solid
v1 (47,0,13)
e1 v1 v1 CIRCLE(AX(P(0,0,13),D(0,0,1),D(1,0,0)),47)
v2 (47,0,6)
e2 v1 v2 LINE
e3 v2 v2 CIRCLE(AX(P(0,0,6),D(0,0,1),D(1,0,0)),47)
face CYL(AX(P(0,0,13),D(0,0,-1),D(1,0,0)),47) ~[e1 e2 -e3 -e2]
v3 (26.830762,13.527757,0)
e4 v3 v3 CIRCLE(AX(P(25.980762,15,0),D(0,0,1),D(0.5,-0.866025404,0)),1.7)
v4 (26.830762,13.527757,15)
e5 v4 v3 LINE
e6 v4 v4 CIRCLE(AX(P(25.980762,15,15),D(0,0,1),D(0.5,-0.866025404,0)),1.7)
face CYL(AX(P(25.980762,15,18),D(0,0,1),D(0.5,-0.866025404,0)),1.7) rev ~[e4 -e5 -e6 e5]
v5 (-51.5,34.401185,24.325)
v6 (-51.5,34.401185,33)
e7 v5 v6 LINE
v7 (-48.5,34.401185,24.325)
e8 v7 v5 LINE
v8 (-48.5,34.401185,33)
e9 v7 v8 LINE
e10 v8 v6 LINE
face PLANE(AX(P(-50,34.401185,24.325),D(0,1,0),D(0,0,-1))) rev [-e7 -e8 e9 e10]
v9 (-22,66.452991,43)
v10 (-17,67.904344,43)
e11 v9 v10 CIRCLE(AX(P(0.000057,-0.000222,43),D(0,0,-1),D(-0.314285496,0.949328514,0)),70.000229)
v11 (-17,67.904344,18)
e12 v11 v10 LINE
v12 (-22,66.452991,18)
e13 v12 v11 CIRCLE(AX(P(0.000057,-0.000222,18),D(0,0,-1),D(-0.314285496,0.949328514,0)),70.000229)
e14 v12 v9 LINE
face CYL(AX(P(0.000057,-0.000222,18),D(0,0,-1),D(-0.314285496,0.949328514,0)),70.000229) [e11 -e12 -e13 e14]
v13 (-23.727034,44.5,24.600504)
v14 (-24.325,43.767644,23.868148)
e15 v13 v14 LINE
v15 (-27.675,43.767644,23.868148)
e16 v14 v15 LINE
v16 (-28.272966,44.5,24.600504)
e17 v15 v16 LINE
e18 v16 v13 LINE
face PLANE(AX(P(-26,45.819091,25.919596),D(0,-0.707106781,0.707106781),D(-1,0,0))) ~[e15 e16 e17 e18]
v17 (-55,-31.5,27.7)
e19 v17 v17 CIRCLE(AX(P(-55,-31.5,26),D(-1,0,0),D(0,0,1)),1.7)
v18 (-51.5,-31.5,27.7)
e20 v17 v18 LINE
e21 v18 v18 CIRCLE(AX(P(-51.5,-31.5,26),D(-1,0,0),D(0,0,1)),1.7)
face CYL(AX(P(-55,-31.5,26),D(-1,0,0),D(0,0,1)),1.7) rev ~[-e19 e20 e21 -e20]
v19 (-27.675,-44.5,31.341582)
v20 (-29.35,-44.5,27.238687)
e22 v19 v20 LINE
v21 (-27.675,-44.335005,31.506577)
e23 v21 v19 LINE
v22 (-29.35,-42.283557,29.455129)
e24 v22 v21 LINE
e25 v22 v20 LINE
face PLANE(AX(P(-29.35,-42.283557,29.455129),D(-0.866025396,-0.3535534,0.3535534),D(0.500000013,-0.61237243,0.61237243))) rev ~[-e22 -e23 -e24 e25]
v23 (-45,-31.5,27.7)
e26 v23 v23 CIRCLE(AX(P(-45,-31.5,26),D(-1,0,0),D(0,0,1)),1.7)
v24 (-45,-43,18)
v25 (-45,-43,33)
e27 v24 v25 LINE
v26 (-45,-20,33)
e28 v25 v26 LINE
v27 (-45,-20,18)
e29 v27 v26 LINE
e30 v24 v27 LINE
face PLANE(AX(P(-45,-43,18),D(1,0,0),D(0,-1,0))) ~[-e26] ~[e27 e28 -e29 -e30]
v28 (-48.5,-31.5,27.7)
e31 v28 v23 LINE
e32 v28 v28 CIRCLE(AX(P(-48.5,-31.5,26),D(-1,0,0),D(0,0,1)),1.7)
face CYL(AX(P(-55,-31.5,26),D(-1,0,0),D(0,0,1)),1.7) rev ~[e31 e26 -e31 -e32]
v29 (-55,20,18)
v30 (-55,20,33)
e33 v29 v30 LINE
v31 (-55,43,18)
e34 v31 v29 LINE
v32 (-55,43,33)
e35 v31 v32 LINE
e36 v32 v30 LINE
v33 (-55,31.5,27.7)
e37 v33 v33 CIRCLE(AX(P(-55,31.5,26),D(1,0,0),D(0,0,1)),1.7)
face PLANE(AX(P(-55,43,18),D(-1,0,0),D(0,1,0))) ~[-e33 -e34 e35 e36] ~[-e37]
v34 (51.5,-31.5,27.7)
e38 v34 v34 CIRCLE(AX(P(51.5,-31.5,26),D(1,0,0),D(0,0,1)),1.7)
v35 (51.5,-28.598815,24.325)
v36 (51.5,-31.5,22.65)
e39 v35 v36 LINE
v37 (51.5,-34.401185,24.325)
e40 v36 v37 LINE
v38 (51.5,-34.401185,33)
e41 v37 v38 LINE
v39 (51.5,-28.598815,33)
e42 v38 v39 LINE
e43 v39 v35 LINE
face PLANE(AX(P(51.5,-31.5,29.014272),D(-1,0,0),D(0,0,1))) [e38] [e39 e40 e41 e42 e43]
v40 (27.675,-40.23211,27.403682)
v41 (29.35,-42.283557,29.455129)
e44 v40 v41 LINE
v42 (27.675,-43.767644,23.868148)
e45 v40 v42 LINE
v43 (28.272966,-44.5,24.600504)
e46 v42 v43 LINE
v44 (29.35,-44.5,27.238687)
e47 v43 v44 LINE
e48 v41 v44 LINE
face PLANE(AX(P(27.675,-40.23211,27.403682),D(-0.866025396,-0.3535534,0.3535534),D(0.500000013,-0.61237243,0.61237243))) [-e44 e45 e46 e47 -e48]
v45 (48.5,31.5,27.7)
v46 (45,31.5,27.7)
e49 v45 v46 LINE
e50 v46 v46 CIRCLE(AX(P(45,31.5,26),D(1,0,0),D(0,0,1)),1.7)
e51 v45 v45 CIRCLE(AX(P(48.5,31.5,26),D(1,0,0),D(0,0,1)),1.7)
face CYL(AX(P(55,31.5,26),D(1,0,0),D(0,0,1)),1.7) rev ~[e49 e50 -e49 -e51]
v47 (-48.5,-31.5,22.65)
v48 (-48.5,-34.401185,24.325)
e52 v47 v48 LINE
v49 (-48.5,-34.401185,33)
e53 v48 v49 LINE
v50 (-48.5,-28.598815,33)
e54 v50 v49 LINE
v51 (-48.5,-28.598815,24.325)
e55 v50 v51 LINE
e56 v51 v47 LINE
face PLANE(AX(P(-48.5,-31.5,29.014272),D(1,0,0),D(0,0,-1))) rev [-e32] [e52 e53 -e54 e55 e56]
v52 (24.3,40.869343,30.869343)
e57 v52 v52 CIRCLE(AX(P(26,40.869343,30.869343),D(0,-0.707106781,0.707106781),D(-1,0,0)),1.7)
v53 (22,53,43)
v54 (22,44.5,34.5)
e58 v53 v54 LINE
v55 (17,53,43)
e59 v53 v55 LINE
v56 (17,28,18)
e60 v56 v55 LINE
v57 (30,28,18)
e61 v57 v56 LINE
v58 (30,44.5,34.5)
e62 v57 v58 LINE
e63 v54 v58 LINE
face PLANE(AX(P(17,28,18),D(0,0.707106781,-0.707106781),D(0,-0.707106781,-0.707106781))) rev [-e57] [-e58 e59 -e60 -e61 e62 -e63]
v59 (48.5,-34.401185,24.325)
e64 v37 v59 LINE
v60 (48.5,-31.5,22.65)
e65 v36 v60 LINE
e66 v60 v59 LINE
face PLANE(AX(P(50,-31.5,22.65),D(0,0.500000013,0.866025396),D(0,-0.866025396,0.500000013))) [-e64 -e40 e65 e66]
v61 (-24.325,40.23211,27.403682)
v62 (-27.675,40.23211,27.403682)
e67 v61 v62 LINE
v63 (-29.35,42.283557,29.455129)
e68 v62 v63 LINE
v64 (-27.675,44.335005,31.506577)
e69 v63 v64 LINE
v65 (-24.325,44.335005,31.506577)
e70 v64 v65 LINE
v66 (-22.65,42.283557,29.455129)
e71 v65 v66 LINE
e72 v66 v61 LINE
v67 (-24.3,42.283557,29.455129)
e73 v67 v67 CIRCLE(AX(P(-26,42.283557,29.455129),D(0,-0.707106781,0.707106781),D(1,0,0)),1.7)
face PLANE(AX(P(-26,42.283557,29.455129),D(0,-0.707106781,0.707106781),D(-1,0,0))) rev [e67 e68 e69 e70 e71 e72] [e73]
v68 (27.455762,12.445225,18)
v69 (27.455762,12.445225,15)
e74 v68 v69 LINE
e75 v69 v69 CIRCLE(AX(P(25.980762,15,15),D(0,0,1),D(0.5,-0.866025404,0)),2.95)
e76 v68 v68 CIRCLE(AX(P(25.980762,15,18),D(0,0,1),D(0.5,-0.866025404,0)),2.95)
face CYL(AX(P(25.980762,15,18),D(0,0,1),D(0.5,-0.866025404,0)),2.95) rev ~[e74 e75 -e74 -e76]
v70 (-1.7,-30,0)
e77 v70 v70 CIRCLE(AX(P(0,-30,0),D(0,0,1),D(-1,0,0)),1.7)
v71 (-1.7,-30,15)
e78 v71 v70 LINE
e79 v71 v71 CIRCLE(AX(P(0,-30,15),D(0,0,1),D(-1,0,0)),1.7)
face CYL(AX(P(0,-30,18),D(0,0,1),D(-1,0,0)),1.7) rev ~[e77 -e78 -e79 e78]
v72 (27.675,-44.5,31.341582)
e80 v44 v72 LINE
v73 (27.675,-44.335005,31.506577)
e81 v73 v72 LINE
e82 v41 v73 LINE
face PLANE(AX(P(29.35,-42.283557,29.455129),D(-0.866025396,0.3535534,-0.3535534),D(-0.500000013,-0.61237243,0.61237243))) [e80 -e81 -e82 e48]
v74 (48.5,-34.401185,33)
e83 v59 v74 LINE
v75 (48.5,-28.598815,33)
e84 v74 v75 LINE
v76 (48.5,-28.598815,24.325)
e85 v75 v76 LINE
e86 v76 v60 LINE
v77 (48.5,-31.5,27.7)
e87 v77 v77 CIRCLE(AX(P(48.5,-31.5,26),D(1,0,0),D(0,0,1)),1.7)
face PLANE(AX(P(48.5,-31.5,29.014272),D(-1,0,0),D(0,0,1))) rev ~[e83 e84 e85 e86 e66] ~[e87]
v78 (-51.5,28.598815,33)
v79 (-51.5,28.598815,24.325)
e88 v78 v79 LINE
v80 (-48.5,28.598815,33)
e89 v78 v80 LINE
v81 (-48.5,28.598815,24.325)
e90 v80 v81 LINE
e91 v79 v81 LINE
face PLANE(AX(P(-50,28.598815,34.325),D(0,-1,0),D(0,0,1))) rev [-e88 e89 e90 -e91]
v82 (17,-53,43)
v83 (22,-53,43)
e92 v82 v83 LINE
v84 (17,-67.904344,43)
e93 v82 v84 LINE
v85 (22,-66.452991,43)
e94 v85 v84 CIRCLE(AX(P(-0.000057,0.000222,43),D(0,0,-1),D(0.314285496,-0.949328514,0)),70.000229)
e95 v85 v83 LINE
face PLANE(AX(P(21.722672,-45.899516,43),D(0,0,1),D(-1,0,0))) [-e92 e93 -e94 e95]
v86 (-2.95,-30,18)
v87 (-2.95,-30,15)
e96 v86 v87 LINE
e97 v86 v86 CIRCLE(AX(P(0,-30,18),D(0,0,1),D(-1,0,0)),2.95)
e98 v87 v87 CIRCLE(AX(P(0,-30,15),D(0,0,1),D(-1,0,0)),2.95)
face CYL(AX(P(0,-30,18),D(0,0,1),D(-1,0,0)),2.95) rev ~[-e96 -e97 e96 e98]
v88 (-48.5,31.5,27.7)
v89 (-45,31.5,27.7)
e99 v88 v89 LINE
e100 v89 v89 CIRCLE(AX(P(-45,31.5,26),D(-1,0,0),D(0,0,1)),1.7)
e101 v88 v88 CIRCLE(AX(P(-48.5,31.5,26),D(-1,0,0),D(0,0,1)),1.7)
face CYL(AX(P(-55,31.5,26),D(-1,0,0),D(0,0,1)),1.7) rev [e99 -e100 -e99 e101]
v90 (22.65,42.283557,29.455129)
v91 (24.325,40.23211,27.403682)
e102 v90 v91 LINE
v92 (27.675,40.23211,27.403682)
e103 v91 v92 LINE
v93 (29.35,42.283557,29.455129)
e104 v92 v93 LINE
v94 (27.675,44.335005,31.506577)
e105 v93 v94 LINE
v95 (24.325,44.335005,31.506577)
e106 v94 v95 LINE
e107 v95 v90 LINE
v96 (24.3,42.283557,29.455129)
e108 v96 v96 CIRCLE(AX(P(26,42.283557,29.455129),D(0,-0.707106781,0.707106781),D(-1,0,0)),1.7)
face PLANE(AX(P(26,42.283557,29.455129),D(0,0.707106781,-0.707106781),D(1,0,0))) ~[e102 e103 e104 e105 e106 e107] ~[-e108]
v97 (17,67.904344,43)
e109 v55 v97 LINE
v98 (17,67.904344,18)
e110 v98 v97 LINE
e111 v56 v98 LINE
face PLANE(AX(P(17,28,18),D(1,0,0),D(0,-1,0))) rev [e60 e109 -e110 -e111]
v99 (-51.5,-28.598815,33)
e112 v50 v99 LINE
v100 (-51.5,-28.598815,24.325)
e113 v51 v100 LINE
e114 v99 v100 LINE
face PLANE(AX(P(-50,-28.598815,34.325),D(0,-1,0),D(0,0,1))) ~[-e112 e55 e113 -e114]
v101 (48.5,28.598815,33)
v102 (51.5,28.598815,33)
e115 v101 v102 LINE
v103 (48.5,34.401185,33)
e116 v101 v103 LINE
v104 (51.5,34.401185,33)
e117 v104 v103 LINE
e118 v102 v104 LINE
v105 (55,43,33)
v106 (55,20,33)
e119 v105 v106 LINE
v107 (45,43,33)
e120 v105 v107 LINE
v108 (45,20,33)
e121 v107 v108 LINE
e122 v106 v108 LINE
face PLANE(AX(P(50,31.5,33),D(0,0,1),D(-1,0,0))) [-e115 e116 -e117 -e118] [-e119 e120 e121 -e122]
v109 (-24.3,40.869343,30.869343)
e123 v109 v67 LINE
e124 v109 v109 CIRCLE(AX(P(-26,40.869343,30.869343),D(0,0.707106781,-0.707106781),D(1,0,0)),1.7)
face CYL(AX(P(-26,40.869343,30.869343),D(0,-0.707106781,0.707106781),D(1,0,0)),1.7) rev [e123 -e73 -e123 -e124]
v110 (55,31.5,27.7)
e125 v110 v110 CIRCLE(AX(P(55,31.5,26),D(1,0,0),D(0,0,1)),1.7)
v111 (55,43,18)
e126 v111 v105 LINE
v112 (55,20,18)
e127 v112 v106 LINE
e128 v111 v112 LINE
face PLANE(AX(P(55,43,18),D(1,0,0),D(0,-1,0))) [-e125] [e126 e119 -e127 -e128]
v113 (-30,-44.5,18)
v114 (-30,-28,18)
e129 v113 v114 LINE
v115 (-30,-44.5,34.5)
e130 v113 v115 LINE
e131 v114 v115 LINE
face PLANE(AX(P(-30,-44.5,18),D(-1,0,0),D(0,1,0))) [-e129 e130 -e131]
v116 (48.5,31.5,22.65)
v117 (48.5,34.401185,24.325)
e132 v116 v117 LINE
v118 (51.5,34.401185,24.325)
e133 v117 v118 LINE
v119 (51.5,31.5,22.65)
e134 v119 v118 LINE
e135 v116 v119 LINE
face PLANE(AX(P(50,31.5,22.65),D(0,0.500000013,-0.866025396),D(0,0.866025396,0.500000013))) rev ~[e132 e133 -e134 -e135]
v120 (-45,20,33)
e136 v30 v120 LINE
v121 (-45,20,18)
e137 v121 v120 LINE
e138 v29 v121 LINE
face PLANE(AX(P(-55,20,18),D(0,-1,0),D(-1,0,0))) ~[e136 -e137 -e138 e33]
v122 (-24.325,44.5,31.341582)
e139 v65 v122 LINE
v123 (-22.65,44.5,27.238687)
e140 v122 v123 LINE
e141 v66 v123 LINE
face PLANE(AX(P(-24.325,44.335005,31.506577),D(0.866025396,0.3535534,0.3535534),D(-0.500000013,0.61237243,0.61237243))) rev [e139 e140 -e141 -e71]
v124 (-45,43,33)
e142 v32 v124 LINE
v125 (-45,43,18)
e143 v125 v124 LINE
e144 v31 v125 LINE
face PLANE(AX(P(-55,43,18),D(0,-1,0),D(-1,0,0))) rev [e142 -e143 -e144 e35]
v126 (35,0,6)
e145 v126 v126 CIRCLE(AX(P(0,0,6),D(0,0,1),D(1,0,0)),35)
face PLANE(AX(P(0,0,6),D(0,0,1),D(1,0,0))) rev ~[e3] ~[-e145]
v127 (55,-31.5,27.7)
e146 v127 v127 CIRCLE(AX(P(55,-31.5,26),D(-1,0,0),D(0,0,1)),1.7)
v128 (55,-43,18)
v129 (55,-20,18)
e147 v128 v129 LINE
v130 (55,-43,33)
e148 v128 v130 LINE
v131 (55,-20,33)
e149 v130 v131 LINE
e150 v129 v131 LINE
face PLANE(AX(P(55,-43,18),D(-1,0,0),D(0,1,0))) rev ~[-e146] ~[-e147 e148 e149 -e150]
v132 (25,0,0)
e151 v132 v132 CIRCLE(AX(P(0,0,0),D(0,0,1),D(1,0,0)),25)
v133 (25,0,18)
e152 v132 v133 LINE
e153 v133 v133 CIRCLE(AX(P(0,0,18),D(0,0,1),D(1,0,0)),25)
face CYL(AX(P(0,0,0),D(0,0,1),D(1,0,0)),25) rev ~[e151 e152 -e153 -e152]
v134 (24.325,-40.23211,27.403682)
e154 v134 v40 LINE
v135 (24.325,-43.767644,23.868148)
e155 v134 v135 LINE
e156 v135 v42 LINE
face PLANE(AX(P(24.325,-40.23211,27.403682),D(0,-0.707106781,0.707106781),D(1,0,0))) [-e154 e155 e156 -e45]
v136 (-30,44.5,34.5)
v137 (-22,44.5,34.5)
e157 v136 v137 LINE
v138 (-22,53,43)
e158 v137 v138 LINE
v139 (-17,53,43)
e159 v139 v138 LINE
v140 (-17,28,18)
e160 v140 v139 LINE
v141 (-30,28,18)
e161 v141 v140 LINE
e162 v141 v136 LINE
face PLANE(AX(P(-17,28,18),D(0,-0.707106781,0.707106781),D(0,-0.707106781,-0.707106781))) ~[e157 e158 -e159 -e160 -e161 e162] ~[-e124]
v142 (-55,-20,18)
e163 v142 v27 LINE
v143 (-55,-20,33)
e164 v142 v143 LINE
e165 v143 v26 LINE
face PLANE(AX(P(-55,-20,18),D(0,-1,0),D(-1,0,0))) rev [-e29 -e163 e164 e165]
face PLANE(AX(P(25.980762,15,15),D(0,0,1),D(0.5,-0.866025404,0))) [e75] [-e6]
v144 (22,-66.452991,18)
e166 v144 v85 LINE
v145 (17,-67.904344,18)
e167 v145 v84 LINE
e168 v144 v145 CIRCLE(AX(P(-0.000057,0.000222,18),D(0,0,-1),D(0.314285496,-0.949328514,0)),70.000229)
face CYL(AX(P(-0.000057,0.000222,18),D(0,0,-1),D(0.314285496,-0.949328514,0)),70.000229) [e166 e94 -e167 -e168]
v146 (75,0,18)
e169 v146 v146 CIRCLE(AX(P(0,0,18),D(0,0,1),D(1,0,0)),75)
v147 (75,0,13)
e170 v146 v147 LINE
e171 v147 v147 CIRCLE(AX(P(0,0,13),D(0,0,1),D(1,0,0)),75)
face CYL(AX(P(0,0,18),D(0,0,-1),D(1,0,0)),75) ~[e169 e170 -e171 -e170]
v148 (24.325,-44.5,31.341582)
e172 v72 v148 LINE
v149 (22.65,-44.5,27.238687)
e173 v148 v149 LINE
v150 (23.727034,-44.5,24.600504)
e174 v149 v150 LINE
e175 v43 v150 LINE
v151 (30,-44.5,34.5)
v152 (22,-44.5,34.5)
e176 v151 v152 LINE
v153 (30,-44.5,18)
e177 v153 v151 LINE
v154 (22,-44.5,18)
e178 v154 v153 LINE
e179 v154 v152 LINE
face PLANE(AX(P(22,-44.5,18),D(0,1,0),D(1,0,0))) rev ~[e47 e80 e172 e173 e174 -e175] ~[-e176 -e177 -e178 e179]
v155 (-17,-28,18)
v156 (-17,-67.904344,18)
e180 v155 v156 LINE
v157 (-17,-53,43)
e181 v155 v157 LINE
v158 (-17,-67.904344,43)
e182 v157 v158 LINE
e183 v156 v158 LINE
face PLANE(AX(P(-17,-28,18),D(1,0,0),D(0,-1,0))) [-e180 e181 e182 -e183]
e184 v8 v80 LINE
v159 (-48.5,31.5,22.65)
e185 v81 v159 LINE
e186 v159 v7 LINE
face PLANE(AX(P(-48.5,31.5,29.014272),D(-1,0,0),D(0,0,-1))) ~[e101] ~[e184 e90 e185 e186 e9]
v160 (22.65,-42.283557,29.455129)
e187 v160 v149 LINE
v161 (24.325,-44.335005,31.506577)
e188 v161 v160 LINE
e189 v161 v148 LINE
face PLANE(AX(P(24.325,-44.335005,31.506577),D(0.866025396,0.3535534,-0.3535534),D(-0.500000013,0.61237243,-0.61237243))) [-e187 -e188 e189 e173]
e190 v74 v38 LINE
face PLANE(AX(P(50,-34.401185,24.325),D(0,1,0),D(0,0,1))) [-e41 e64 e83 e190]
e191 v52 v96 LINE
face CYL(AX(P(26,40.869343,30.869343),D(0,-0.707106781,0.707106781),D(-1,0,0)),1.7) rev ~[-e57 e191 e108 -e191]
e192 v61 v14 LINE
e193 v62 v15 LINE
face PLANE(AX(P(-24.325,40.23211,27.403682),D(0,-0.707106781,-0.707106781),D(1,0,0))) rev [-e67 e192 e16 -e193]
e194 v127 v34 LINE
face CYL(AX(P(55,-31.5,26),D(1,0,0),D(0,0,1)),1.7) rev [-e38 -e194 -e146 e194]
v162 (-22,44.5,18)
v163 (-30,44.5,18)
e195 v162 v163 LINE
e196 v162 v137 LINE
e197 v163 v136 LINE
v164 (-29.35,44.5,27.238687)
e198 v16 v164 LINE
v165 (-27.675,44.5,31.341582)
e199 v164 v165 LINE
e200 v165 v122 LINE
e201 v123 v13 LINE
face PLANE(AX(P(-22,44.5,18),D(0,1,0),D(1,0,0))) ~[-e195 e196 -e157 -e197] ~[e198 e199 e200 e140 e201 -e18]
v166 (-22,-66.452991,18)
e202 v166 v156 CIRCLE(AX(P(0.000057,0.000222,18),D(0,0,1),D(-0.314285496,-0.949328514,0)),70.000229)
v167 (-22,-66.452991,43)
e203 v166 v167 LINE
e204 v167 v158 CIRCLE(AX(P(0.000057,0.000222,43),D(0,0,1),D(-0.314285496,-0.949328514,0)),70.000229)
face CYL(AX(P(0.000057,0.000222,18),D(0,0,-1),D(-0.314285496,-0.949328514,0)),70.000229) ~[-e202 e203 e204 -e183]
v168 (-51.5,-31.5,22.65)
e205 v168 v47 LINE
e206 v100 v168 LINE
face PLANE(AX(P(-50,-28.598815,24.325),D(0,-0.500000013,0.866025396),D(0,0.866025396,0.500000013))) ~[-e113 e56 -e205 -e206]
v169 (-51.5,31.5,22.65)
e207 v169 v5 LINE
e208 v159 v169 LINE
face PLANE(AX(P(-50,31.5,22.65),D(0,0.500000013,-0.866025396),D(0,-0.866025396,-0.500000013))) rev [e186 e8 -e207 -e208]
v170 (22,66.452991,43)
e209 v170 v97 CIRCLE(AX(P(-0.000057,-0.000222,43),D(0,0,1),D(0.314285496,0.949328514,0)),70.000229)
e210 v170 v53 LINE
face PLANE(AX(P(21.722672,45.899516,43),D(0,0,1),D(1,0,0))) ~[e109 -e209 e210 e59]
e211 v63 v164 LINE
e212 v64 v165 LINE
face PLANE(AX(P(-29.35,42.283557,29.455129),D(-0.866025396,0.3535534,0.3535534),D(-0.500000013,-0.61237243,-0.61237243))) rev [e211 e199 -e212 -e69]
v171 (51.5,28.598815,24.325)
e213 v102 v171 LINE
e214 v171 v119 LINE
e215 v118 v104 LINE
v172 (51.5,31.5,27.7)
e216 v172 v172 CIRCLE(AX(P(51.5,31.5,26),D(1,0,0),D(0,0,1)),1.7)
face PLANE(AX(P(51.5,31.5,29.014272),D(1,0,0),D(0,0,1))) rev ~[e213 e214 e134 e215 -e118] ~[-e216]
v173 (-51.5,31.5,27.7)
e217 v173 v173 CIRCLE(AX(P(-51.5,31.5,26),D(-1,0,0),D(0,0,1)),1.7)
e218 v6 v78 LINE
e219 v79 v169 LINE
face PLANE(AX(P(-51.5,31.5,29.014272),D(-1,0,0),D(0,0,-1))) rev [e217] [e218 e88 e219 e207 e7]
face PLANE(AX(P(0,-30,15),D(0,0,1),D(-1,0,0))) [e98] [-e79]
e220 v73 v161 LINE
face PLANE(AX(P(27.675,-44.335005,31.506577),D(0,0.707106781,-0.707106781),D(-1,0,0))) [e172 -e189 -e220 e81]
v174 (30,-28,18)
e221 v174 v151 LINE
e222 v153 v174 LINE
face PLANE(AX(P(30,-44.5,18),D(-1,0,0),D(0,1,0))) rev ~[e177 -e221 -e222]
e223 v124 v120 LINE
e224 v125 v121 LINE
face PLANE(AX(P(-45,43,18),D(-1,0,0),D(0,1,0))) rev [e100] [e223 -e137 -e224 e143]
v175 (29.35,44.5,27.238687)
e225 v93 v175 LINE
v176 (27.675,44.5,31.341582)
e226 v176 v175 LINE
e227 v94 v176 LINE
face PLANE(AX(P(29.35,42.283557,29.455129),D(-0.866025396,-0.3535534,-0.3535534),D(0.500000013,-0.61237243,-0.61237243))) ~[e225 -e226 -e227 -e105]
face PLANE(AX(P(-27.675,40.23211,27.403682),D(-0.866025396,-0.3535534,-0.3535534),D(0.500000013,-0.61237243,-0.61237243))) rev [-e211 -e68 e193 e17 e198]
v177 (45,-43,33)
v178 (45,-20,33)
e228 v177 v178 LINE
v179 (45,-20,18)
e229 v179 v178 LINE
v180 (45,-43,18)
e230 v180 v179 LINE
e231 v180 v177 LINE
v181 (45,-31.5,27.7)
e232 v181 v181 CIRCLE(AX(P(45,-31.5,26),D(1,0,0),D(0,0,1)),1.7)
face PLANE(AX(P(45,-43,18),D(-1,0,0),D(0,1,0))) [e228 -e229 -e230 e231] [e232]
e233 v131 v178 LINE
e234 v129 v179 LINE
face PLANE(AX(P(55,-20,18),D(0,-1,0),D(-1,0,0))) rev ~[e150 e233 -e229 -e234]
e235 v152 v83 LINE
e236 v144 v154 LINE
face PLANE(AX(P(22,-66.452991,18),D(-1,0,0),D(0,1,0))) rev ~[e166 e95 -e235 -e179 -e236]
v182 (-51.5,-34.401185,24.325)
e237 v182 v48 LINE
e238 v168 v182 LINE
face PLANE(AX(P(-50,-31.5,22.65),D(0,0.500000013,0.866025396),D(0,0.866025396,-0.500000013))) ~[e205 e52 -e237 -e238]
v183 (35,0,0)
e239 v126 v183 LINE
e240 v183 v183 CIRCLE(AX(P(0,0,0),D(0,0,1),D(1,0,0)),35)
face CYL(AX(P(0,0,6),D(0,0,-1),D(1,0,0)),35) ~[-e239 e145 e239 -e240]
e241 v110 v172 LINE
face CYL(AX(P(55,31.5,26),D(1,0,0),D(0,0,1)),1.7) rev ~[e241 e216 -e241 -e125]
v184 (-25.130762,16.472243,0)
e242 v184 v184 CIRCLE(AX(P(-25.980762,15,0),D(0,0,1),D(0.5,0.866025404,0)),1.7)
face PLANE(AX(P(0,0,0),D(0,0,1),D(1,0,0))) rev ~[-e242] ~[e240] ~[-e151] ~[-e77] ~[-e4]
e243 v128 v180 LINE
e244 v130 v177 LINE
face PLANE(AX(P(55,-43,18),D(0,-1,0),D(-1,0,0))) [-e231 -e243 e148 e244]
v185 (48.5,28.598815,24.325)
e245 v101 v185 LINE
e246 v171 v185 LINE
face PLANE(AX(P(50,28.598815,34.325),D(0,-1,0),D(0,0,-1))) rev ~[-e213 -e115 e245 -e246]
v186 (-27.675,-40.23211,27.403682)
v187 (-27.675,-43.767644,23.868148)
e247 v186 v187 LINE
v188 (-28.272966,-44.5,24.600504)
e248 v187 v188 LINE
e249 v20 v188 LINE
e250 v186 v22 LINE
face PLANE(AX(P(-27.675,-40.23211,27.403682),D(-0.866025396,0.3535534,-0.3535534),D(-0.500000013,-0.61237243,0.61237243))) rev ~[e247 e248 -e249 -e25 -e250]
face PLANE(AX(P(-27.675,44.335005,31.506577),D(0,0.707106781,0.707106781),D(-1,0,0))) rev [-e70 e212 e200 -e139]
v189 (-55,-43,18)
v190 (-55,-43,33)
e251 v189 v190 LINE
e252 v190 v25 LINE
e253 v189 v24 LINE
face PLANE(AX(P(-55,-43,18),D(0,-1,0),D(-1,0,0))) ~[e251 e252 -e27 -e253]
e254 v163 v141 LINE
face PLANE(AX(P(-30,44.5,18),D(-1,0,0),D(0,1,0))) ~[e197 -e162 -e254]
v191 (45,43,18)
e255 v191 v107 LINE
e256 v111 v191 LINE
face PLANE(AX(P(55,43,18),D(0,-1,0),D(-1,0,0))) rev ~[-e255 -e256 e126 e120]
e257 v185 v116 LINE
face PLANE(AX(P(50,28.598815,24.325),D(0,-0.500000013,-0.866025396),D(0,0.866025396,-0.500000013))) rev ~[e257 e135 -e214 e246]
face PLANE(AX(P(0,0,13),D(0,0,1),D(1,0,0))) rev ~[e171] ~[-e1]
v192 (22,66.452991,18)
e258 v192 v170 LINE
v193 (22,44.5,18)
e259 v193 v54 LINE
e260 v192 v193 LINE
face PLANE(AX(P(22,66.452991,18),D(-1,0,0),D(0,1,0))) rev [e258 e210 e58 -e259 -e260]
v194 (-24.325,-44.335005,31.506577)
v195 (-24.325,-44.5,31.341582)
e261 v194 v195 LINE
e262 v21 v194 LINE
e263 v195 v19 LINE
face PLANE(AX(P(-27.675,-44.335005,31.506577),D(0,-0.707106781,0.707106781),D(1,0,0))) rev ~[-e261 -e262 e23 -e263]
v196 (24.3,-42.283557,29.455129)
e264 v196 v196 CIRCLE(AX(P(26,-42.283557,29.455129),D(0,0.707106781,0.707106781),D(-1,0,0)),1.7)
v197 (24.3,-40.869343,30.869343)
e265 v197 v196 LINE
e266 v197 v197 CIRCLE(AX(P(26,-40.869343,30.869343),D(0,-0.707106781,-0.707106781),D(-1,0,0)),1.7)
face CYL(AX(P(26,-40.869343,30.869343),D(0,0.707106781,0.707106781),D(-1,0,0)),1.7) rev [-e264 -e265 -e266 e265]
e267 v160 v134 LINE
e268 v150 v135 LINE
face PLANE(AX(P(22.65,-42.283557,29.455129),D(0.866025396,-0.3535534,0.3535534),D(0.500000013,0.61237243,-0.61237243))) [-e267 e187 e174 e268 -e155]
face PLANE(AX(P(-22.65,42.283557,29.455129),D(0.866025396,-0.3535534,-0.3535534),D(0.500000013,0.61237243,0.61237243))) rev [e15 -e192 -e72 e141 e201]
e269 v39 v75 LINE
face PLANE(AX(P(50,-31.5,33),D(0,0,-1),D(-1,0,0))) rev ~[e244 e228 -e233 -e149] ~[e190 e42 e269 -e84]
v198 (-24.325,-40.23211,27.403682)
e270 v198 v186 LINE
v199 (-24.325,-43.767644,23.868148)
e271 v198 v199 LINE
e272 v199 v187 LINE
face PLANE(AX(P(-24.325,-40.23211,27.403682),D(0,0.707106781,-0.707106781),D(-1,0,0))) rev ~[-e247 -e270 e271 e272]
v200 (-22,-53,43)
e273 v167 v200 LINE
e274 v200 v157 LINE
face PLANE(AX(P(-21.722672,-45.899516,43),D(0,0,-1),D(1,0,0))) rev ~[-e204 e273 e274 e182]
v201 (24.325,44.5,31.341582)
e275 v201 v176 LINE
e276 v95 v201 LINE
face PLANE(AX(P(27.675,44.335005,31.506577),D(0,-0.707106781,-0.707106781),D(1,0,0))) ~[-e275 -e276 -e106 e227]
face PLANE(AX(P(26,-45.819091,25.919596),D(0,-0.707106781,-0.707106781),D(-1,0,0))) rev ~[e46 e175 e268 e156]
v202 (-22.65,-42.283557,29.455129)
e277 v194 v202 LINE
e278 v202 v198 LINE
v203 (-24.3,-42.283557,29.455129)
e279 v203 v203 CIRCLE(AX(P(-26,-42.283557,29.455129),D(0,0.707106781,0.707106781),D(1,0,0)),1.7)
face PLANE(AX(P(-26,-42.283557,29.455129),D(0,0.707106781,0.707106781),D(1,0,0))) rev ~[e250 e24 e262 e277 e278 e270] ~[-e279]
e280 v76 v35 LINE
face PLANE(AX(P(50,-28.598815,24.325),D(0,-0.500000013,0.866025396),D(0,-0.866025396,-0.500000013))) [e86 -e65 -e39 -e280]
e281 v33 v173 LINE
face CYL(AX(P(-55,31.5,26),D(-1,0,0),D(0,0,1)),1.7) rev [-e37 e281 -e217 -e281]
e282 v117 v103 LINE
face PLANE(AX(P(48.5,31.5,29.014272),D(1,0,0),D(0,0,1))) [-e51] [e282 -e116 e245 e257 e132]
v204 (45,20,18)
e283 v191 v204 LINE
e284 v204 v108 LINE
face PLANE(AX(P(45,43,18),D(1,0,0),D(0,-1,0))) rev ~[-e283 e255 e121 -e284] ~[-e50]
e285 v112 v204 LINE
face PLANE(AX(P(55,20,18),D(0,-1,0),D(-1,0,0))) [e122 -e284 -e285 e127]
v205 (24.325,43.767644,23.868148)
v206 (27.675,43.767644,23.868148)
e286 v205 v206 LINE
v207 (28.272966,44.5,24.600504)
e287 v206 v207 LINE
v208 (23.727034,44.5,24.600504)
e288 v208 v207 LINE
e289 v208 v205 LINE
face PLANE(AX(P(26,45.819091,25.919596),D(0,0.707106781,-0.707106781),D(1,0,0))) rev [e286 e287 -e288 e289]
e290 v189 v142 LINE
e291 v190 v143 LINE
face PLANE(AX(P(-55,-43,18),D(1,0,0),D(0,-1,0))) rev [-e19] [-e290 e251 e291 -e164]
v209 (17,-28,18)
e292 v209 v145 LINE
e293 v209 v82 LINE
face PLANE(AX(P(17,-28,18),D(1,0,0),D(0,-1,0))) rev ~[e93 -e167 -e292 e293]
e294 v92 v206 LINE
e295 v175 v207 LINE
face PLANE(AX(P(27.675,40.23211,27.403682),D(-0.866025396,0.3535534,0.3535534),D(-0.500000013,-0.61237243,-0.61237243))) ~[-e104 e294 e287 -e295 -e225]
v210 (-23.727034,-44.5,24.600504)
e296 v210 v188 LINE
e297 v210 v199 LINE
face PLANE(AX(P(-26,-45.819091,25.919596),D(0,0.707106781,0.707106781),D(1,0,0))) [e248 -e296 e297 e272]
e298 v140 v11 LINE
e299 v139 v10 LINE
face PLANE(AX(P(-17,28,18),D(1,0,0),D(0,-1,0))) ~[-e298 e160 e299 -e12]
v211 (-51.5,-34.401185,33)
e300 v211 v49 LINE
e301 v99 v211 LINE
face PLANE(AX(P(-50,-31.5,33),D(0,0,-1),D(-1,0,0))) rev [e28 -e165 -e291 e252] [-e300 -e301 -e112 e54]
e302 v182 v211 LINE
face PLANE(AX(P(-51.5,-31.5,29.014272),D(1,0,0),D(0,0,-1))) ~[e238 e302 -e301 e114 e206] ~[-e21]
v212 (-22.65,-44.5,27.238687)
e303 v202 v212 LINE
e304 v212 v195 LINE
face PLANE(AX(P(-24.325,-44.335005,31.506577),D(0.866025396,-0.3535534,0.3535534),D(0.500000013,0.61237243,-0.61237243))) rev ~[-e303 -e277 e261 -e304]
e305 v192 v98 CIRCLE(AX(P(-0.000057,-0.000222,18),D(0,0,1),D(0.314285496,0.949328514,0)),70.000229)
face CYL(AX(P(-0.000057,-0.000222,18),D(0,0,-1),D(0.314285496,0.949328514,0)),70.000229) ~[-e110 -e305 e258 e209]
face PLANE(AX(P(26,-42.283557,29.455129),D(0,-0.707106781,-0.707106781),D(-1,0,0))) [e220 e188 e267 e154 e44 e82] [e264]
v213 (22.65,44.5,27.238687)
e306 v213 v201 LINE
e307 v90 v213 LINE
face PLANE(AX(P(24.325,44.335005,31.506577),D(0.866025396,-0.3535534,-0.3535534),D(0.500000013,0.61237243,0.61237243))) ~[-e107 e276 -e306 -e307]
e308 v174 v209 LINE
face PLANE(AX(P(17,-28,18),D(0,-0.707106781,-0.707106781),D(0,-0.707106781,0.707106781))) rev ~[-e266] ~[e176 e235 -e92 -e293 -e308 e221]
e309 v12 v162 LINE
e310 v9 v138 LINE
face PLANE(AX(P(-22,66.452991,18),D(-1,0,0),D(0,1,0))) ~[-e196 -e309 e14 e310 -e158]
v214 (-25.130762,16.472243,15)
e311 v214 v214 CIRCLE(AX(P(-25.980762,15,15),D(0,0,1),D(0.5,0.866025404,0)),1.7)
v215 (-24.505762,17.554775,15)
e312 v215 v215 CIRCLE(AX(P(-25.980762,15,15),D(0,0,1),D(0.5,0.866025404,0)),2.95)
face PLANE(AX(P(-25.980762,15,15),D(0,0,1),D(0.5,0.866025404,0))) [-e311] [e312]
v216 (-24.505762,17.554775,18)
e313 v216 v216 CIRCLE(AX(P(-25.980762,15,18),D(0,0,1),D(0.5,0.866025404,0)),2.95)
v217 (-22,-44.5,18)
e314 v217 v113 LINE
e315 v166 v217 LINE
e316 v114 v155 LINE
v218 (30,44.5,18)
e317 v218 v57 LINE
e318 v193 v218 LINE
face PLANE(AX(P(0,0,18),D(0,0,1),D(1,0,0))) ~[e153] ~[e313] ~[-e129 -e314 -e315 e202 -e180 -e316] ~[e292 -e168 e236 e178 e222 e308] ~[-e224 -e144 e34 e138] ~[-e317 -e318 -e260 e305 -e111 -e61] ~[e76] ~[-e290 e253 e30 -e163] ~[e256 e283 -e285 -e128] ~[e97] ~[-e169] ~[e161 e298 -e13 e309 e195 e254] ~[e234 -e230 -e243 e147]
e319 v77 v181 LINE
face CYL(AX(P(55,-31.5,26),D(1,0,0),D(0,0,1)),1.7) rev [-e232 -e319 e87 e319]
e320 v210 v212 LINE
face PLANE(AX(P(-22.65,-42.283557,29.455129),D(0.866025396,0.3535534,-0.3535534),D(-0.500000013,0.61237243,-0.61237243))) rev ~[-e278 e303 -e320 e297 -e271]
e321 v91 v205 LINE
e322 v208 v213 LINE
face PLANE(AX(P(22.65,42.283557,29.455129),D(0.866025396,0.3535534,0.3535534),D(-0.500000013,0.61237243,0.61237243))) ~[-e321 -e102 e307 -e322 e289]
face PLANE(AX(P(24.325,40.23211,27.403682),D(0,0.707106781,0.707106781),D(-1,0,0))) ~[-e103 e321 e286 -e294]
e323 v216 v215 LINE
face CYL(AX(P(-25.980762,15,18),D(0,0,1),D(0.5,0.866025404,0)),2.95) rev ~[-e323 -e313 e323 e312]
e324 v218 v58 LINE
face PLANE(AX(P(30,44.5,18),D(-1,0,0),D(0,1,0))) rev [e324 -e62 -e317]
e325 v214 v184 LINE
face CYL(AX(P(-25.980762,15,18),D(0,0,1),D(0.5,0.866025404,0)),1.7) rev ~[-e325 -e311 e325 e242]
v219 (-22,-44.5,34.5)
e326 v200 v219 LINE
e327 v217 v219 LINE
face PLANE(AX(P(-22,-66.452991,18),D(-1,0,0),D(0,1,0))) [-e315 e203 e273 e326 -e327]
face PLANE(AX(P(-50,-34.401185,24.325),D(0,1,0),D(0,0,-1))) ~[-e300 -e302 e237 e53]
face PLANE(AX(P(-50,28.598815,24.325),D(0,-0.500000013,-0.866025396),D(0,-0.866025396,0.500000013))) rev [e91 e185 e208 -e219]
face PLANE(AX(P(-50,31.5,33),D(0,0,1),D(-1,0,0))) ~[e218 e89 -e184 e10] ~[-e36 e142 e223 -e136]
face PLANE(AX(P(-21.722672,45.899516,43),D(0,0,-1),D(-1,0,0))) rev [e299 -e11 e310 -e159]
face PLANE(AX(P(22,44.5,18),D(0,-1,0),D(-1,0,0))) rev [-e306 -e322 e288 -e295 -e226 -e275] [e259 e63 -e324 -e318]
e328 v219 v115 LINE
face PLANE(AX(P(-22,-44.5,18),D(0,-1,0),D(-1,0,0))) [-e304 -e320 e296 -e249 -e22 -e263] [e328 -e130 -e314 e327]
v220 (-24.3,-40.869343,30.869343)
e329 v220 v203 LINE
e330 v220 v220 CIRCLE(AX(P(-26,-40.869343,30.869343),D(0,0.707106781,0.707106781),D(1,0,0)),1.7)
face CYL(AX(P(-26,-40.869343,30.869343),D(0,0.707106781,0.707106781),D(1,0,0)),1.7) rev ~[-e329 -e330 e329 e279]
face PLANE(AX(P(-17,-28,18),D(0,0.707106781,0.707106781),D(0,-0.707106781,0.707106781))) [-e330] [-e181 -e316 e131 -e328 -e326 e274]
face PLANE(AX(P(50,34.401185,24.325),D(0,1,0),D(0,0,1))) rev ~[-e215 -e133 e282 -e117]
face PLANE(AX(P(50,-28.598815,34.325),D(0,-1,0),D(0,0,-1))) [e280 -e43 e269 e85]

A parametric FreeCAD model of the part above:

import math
import FreeCAD as App
import Part
import Sketcher
from FreeCAD import Vector
Q = App.Units.Quantity


def add_polygon(sketch, points):
    """Adds a closed chain of lines whose ends are joined by coincident constraints."""
    first, n = sketch.GeometryCount, len(points)
    for a, b in zip(points, points[1:] + points[:1]):
        sketch.addGeometry(Part.LineSegment(App.Vector(*a, 0), App.Vector(*b, 0)), False)
    for i in range(n):
        sketch.addConstraint(Sketcher.Constraint("Coincident", first + i, 2, first + (i + 1) % n, 1))

doc = App.newDocument("Part")
params = doc.addObject("Spreadsheet::Sheet", "Params")
for row, (alias, value) in enumerate([
    ("sketch1_width", "10 mm"),
    ("sketch1_width2", "12 mm"),
    ("sketch1_width3", "28 mm"),
    ("sketch1_height", "18 mm"),
    ("sketch1_height2", "6 mm"),
    ("revolution_angle", "360 deg"),
    ("sketch2_width", "10 mm"),
    ("sketch2_height", "23 mm"),
    ("pad1_length", "15 mm"),
    ("sketch3_diameter", "3.4 mm"),
    ("sketch4_height", "10 mm"),
    ("sketch4_length", "3.35 mm"),
    ("pocket2_length", "3 mm"),
    ("sketch5_width", "10 mm"),
    ("sketch5_height", "23 mm"),
    ("pad2_length", "15 mm"),
    ("sketch6_diameter", "3.4 mm"),
    ("sketch7_height", "10 mm"),
    ("sketch7_length", "3.35 mm"),
    ("pocket4_length", "3 mm"),
    ("sketch8_diameter", "3.4 mm"),
    ("sketch9_diameter", "5.9 mm"),
    ("pocket6_length", "3 mm"),
    ("sketch10_width", "13 mm"),
    ("sketch10_width2", "8 mm"),
    ("sketch10_height", "16.5 mm"),
    ("pad3_length", "25 mm"),
    ("sketch11_width", "45 mm"),
    ("pocket7_length", "13 mm"),
    ("sketch12_diameter", "3.4 mm"),
    ("pocket8_length", "10 mm"),
    ("sketch13_width", "3.35 mm"),
    ("pocket9_length", "5 mm"),
    ("sketch14_width", "13 mm"),
    ("sketch14_width2", "8 mm"),
    ("sketch14_height", "16.5 mm"),
    ("pad4_length", "25 mm"),
    ("sketch15_width", "45 mm"),
    ("pocket10_length", "13 mm"),
    ("sketch16_diameter", "3.4 mm"),
    ("pocket11_length", "10 mm"),
    ("sketch17_width", "3.35 mm"),
    ("pocket12_length", "5 mm"),
], start=1):
    params.set(f"A{row}", alias)
    params.set(f"B{row}", "=" + value)
    params.setAlias(f"B{row}", alias)

body = doc.addObject("PartDesign::Body", "Body")

# Sketch on XZ plane
sketch1 = body.newObject("Sketcher::SketchObject", "Sketch")
sketch1.AttachmentSupport = (doc.getObject("XZ_Plane"), [""])
sketch1.MapMode = "FlatFace"
add_polygon(sketch1, [(25, 18), (25, 0), (35, 0), (35, 6), (47, 6), (47, 13), (75, 13), (75, 18)])  # lines 0-7
sketch1.addConstraint([
    Sketcher.Constraint("Vertical", 0),
    Sketcher.Constraint("Horizontal", 1),
    Sketcher.Constraint("Vertical", 2),
    Sketcher.Constraint("Horizontal", 3),
    Sketcher.Constraint("Vertical", 4),
    Sketcher.Constraint("Horizontal", 5),
    Sketcher.Constraint("Vertical", 6),
    Sketcher.Constraint("Horizontal", 7),
    Sketcher.Constraint("PointOnObject", 0, 2, -1),
    Sketcher.Constraint("DistanceX", 1, 1, 1, 2, 10.0),
    Sketcher.Constraint("DistanceX", 3, 1, 3, 2, 12.0),
    Sketcher.Constraint("DistanceX", 5, 1, 5, 2, 28.0),
    Sketcher.Constraint("DistanceY", 0, 2, 0, 1, 18.0),
    Sketcher.Constraint("DistanceY", 2, 1, 2, 2, 6.0),
    Sketcher.Constraint("DistanceY", 4, 1, 4, 2, 7.0),
    Sketcher.Constraint("DistanceX", -1, 1, 0, 2, 25.0),
])
sketch1.setExpression("Constraints[17]", "Params.sketch1_width")
sketch1.setExpression("Constraints[18]", "Params.sketch1_width2")
sketch1.setExpression("Constraints[19]", "Params.sketch1_width3")
sketch1.setExpression("Constraints[20]", "Params.sketch1_height")
sketch1.setExpression("Constraints[21]", "Params.sketch1_height2")
revolution = body.newObject("PartDesign::Revolution", "Revolution")
revolution.Profile = sketch1
revolution.ReferenceAxis = (sketch1, ["V_Axis"])
revolution.setExpression("Angle", "Params.revolution_angle")

# Sketch on XY plane
sketch2 = body.newObject("Sketcher::SketchObject", "Sketch001")
sketch2.AttachmentSupport = (doc.getObject("XY_Plane"), [""])
sketch2.MapMode = "FlatFace"
sketch2.AttachmentOffset = App.Placement(Vector(0, 0, 18), App.Rotation())
add_polygon(sketch2, [(55, 20), (55, 43), (45, 43), (45, 20)])  # lines 0-3
sketch2.addConstraint([
    Sketcher.Constraint("Vertical", 0),
    Sketcher.Constraint("Horizontal", 1),
    Sketcher.Constraint("Vertical", 2),
    Sketcher.Constraint("Horizontal", 3),
    Sketcher.Constraint("DistanceX", 1, 2, 1, 1, 10.0),
    Sketcher.Constraint("DistanceY", 0, 1, 0, 2, 23.0),
    Sketcher.Constraint("DistanceX", -1, 1, 0, 2, 55.0),
    Sketcher.Constraint("DistanceY", -1, 1, 0, 2, 43.0),
])
sketch2.setExpression("Constraints[8]", "Params.sketch2_width")
sketch2.setExpression("Constraints[9]", "Params.sketch2_height")
pad1 = body.newObject("PartDesign::Pad", "Pad")
pad1.Profile = sketch2
pad1.setExpression("Length", "Params.pad1_length")

# Sketch on YZ plane
sketch3 = body.newObject("Sketcher::SketchObject", "Sketch002")
sketch3.AttachmentSupport = (doc.getObject("YZ_Plane"), [""])
sketch3.MapMode = "FlatFace"
sketch3.AttachmentOffset = App.Placement(Vector(0, 0, 55), App.Rotation())
sketch3.addGeometry(Part.Circle(Vector(31.5, 26, 0), Vector(0, 0, 1), 1.7), False)
sketch3.addConstraint([
    Sketcher.Constraint("Diameter", 0, 3.4),
    Sketcher.Constraint("DistanceY", -1, 1, 0, 3, 26.0),
    Sketcher.Constraint("DistanceX", -1, 1, 0, 3, 31.5),
])
sketch3.setExpression("Constraints[0]", "Params.sketch3_diameter")
pocket1 = body.newObject("PartDesign::Pocket", "Pocket")
pocket1.Profile = sketch3
pocket1.Type = "ThroughAll"

# Sketch on YZ plane
sketch4 = body.newObject("Sketcher::SketchObject", "Sketch003")
sketch4.AttachmentSupport = (doc.getObject("YZ_Plane"), [""])
sketch4.MapMode = "FlatFace"
sketch4.AttachmentOffset = App.Placement(Vector(0, 0, 50), App.Rotation())
add_polygon(sketch4, [(28.6, 24.3), (31.5, 22.6), (34.4, 24.3), (34.4, 34.3), (28.6, 34.3)])  # lines 0-4
sketch4.addConstraint([
    Sketcher.Constraint("Vertical", 2),
    Sketcher.Constraint("Horizontal", 3),
    Sketcher.Constraint("Vertical", 4),
    Sketcher.Constraint("Horizontal", 1, 2, 4, 2),
    Sketcher.Constraint("Equal", 0, 1),
    Sketcher.Constraint("DistanceY", 2, 1, 2, 2, 10.0),
    Sketcher.Constraint("Angle", 0, Q("-30.000001 deg")),
    Sketcher.Constraint("DistanceX", -1, 1, 0, 2, 31.5),
    Sketcher.Constraint("Distance", 0, 3.35),
    Sketcher.Constraint("DistanceY", -1, 1, 0, 2, 22.65),
])
sketch4.setExpression("Constraints[10]", "Params.sketch4_height")
sketch4.setExpression("Constraints[13]", "Params.sketch4_length")
pocket2 = body.newObject("PartDesign::Pocket", "Pocket001")
pocket2.Profile = sketch4
pocket2.setExpression("Length", "Params.pocket2_length")
pocket2.Midplane = True

# Sketch on XY plane
sketch5 = body.newObject("Sketcher::SketchObject", "Sketch004")
sketch5.AttachmentSupport = (doc.getObject("XY_Plane"), [""])
sketch5.MapMode = "FlatFace"
sketch5.AttachmentOffset = App.Placement(Vector(0, 0, 18), App.Rotation())
add_polygon(sketch5, [(55, -20), (55, -43), (45, -43), (45, -20)])  # lines 0-3
sketch5.addConstraint([
    Sketcher.Constraint("Vertical", 0),
    Sketcher.Constraint("Horizontal", 1),
    Sketcher.Constraint("Vertical", 2),
    Sketcher.Constraint("Horizontal", 3),
    Sketcher.Constraint("DistanceX", 1, 2, 1, 1, 10.0),
    Sketcher.Constraint("DistanceY", 0, 2, 0, 1, 23.0),
    Sketcher.Constraint("DistanceX", -1, 1, 0, 2, 55.0),
    Sketcher.Constraint("DistanceY", 0, 2, -1, 1, 43.0),
])
sketch5.setExpression("Constraints[8]", "Params.sketch5_width")
sketch5.setExpression("Constraints[9]", "Params.sketch5_height")
pad2 = body.newObject("PartDesign::Pad", "Pad001")
pad2.Profile = sketch5
pad2.setExpression("Length", "Params.pad2_length")

# Sketch on YZ plane
sketch6 = body.newObject("Sketcher::SketchObject", "Sketch005")
sketch6.AttachmentSupport = (doc.getObject("YZ_Plane"), [""])
sketch6.MapMode = "FlatFace"
sketch6.AttachmentOffset = App.Placement(Vector(0, 0, 55), App.Rotation())
sketch6.addGeometry(Part.Circle(Vector(-31.5, 26, 0), Vector(0, 0, 1), 1.7), False)
sketch6.addConstraint([
    Sketcher.Constraint("Diameter", 0, 3.4),
    Sketcher.Constraint("DistanceY", -1, 1, 0, 3, 26.0),
    Sketcher.Constraint("DistanceX", 0, 3, -1, 1, 31.5),
])
sketch6.setExpression("Constraints[0]", "Params.sketch6_diameter")
pocket3 = body.newObject("PartDesign::Pocket", "Pocket002")
pocket3.Profile = sketch6
pocket3.Type = "ThroughAll"

# Sketch on YZ plane
sketch7 = body.newObject("Sketcher::SketchObject", "Sketch006")
sketch7.AttachmentSupport = (doc.getObject("YZ_Plane"), [""])
sketch7.MapMode = "FlatFace"
sketch7.AttachmentOffset = App.Placement(Vector(0, 0, 50), App.Rotation())
add_polygon(sketch7, [(-28.6, 24.3), (-31.5, 22.6), (-34.4, 24.3), (-34.4, 34.3), (-28.6, 34.3)])  # lines 0-4
sketch7.addConstraint([
    Sketcher.Constraint("Vertical", 2),
    Sketcher.Constraint("Horizontal", 3),
    Sketcher.Constraint("Vertical", 4),
    Sketcher.Constraint("Horizontal", 1, 2, 4, 2),
    Sketcher.Constraint("Equal", 0, 1),
    Sketcher.Constraint("DistanceY", 2, 1, 2, 2, 10.0),
    Sketcher.Constraint("Angle", 0, Q("-149.999999 deg")),
    Sketcher.Constraint("DistanceX", 0, 2, -1, 1, 31.5),
    Sketcher.Constraint("Distance", 0, 3.35),
    Sketcher.Constraint("DistanceY", -1, 1, 0, 2, 22.65),
])
sketch7.setExpression("Constraints[10]", "Params.sketch7_height")
sketch7.setExpression("Constraints[13]", "Params.sketch7_length")
pocket4 = body.newObject("PartDesign::Pocket", "Pocket003")
pocket4.Profile = sketch7
pocket4.setExpression("Length", "Params.pocket4_length")
pocket4.Midplane = True
doc.recompute()

mirrored = body.newObject("PartDesign::Mirrored", "Mirrored")
mirrored.Originals = [pad1, pocket1, pocket2, pad2, pocket3, pocket4]
mirrored.MirrorPlane = (doc.getObject("YZ_Plane"), [""])
body.Tip = mirrored

# Sketch on XY plane
sketch8 = body.newObject("Sketcher::SketchObject", "Sketch007")
sketch8.AttachmentSupport = (doc.getObject("XY_Plane"), [""])
sketch8.MapMode = "FlatFace"
sketch8.AttachmentOffset = App.Placement(Vector(0, 0, 18), App.Rotation())
sketch8.addGeometry(Part.Circle(Vector(0, -30, 0), Vector(0, 0, 1), 1.7), False)
sketch8.addConstraint([
    Sketcher.Constraint("PointOnObject", 0, 3, -2),
    Sketcher.Constraint("Diameter", 0, 3.4),
    Sketcher.Constraint("DistanceY", 0, 3, -1, 1, 30.0),
])
sketch8.setExpression("Constraints[1]", "Params.sketch8_diameter")
pocket5 = body.newObject("PartDesign::Pocket", "Pocket004")
pocket5.Profile = sketch8
pocket5.Type = "ThroughAll"

# Sketch on XY plane
sketch9 = body.newObject("Sketcher::SketchObject", "Sketch008")
sketch9.AttachmentSupport = (doc.getObject("XY_Plane"), [""])
sketch9.MapMode = "FlatFace"
sketch9.AttachmentOffset = App.Placement(Vector(0, 0, 18), App.Rotation())
sketch9.addGeometry(Part.Circle(Vector(0, -30, 0), Vector(0, 0, 1), 3), False)
sketch9.addConstraint([
    Sketcher.Constraint("PointOnObject", 0, 3, -2),
    Sketcher.Constraint("Diameter", 0, 5.9),
    Sketcher.Constraint("DistanceY", 0, 3, -1, 1, 30.0),
])
sketch9.setExpression("Constraints[1]", "Params.sketch9_diameter")
pocket6 = body.newObject("PartDesign::Pocket", "Pocket005")
pocket6.Profile = sketch9
pocket6.setExpression("Length", "Params.pocket6_length")
doc.recompute()

polarpattern = body.newObject("PartDesign::PolarPattern", "PolarPattern")
polarpattern.Originals = [pocket6, pocket5]
polarpattern.Axis = (doc.getObject("Z_Axis"), [""])
polarpattern.Angle = 360
polarpattern.Occurrences = 3
body.Tip = polarpattern

# Sketch on XY plane
sketch10 = body.newObject("Sketcher::SketchObject", "Sketch009")
sketch10.AttachmentSupport = (doc.getObject("XY_Plane"), [""])
sketch10.MapMode = "FlatFace"
sketch10.AttachmentOffset = App.Placement(Vector(0, 0, 18), App.Rotation())
sketch10.addGeometry([
    Part.LineSegment(Vector(-22, -44, 0), Vector(-22, -66, 0)),  # 0
    Part.ArcOfCircle(Part.Circle(Vector(0, 0, 0), Vector(0, 0, 1), 70), math.radians(-108.32), math.radians(-104.06)),  # 1
    Part.LineSegment(Vector(-17, -68, 0), Vector(-17, -28, 0)),  # 2
    Part.LineSegment(Vector(-17, -28, 0), Vector(-30, -28, 0)),  # 3
    Part.LineSegment(Vector(-30, -28, 0), Vector(-30, -44, 0)),  # 4
    Part.LineSegment(Vector(-30, -44, 0), Vector(-22, -44, 0)),  # 5
], False)
sketch10.addConstraint([
    Sketcher.Constraint("Coincident", 0, 2, 1, 1),
    Sketcher.Constraint("Coincident", 1, 2, 2, 1),
    Sketcher.Constraint("Coincident", 2, 2, 3, 1),
    Sketcher.Constraint("Coincident", 3, 2, 4, 1),
    Sketcher.Constraint("Coincident", 4, 2, 5, 1),
    Sketcher.Constraint("Coincident", 5, 2, 0, 1),
    Sketcher.Constraint("Vertical", 0),
    Sketcher.Constraint("Vertical", 2),
    Sketcher.Constraint("Horizontal", 3),
    Sketcher.Constraint("Vertical", 4),
    Sketcher.Constraint("Horizontal", 5),
    Sketcher.Constraint("DistanceX", 3, 2, 3, 1, 13.0),
    Sketcher.Constraint("DistanceX", 5, 1, 5, 2, 8.0),
    Sketcher.Constraint("DistanceY", 4, 2, 4, 1, 16.5),
    Sketcher.Constraint("DistanceX", 0, 2, -1, 1, 22.0),
    Sketcher.Constraint("DistanceY", 2, 2, -1, 1, 28.0),
    Sketcher.Constraint("Radius", 1, 70.000229),
    Sketcher.Constraint("DistanceY", 0, 2, 0, 1, 21.952991),
    Sketcher.Constraint("DistanceY", 2, 1, 2, 2, 39.904344),
])
sketch10.setExpression("Constraints[11]", "Params.sketch10_width")
sketch10.setExpression("Constraints[12]", "Params.sketch10_width2")
sketch10.setExpression("Constraints[13]", "Params.sketch10_height")
pad3 = body.newObject("PartDesign::Pad", "Pad002")
pad3.Profile = sketch10
pad3.setExpression("Length", "Params.pad3_length")

# Sketch on YZ plane
sketch11 = body.newObject("Sketcher::SketchObject", "Sketch010")
sketch11.AttachmentSupport = (doc.getObject("YZ_Plane"), [""])
sketch11.MapMode = "FlatFace"
sketch11.AttachmentOffset = App.Placement(Vector(0, 0, -17), App.Rotation())
add_polygon(sketch11, [(-73, 63), (-28, 18), (-28, 63)])  # lines 0-2
sketch11.addConstraint([
    Sketcher.Constraint("Vertical", 1),
    Sketcher.Constraint("Horizontal", 2),
    Sketcher.Constraint("Equal", 2, 1),
    Sketcher.Constraint("DistanceX", 2, 2, 2, 1, 45.0),
    Sketcher.Constraint("DistanceX", 0, 2, -1, 1, 28.0),
    Sketcher.Constraint("DistanceY", -1, 1, 0, 2, 18.0),
])
sketch11.setExpression("Constraints[6]", "Params.sketch11_width")
pocket7 = body.newObject("PartDesign::Pocket", "Pocket006")
pocket7.Profile = sketch11
pocket7.setExpression("Length", "Params.pocket7_length")

# Sketch on an angled plane
sketch12 = body.newObject("Sketcher::SketchObject", "Sketch011")
sketch12.Placement = App.Placement(Vector(0, -5, -5), App.Rotation(Vector(1, 0, 0), Vector(0, 0.707106781, -0.707106781), Vector(0, 0.707106781, 0.707106781), "ZXY"))
sketch12.addGeometry(Part.Circle(Vector(-26, -50.7, 0), Vector(0, 0, 1), 1.7), False)
sketch12.addConstraint([
    Sketcher.Constraint("Diameter", 0, 3.4),
    Sketcher.Constraint("DistanceX", 0, 3, -1, 1, 26.0),
    Sketcher.Constraint("DistanceY", 0, 3, -1, 1, 50.726912),
])
sketch12.setExpression("Constraints[0]", "Params.sketch12_diameter")
pocket8 = body.newObject("PartDesign::Pocket", "Pocket007")
pocket8.Profile = sketch12
pocket8.setExpression("Length", "Params.pocket8_length")

# Sketch on an angled plane
sketch13 = body.newObject("Sketcher::SketchObject", "Sketch012")
sketch13.Placement = App.Placement(Vector(0, -6.414214, -6.414214), App.Rotation(Vector(1, 0, 0), Vector(0, 0.707106781, -0.707106781), Vector(0, 0.707106781, 0.707106781), "ZXY"))
add_polygon(sketch13, [(-24.3, -53.6), (-22.6, -50.7), (-24.3, -47.8), (-27.7, -47.8), (-29.4, -50.7), (-27.7, -53.6)])  # lines 0-5
sketch13.addConstraint([
    Sketcher.Constraint("Horizontal", 2),
    Sketcher.Constraint("Horizontal", 5),
    Sketcher.Constraint("Parallel", 0, 3),
    Sketcher.Constraint("Parallel", 1, 4),
    Sketcher.Constraint("Horizontal", 0, 2, 3, 2),
    Sketcher.Constraint("Vertical", 2, 2, 4, 2),
    Sketcher.Constraint("Vertical", 1, 2, 5, 2),
    Sketcher.Constraint("Angle", 0, Q("59.999999 deg")),
    Sketcher.Constraint("DistanceX", 2, 2, 2, 1, 3.35),
    Sketcher.Constraint("DistanceX", 3, 2, 0, 2, 6.7),
    Sketcher.Constraint("DistanceX", 0, 2, -1, 1, 22.65),
    Sketcher.Constraint("DistanceY", 0, 2, -1, 1, 50.726912),
])
sketch13.setExpression("Constraints[14]", "Params.sketch13_width")
pocket9 = body.newObject("PartDesign::Pocket", "Pocket008")
pocket9.Profile = sketch13
pocket9.setExpression("Length", "Params.pocket9_length")

# Sketch on XY plane
sketch14 = body.newObject("Sketcher::SketchObject", "Sketch013")
sketch14.AttachmentSupport = (doc.getObject("XY_Plane"), [""])
sketch14.MapMode = "FlatFace"
sketch14.AttachmentOffset = App.Placement(Vector(0, 0, 18), App.Rotation())
sketch14.addGeometry([
    Part.LineSegment(Vector(22, -44, 0), Vector(22, -66, 0)),  # 0
    Part.ArcOfCircle(Part.Circle(Vector(0, 0, 0), Vector(0, 0, 1), 70), math.radians(-75.94), math.radians(-71.68)),  # 1
    Part.LineSegment(Vector(17, -68, 0), Vector(17, -28, 0)),  # 2
    Part.LineSegment(Vector(17, -28, 0), Vector(30, -28, 0)),  # 3
    Part.LineSegment(Vector(30, -28, 0), Vector(30, -44, 0)),  # 4
    Part.LineSegment(Vector(30, -44, 0), Vector(22, -44, 0)),  # 5
], False)
sketch14.addConstraint([
    Sketcher.Constraint("Coincident", 0, 2, 1, 2),
    Sketcher.Constraint("Coincident", 1, 1, 2, 1),
    Sketcher.Constraint("Coincident", 2, 2, 3, 1),
    Sketcher.Constraint("Coincident", 3, 2, 4, 1),
    Sketcher.Constraint("Coincident", 4, 2, 5, 1),
    Sketcher.Constraint("Coincident", 5, 2, 0, 1),
    Sketcher.Constraint("Vertical", 0),
    Sketcher.Constraint("Vertical", 2),
    Sketcher.Constraint("Horizontal", 3),
    Sketcher.Constraint("Vertical", 4),
    Sketcher.Constraint("Horizontal", 5),
    Sketcher.Constraint("DistanceX", 3, 1, 3, 2, 13.0),
    Sketcher.Constraint("DistanceX", 5, 2, 5, 1, 8.0),
    Sketcher.Constraint("DistanceY", 4, 2, 4, 1, 16.5),
    Sketcher.Constraint("DistanceX", -1, 1, 0, 2, 22.0),
    Sketcher.Constraint("DistanceY", 2, 2, -1, 1, 28.0),
    Sketcher.Constraint("Radius", 1, 70.000229),
    Sketcher.Constraint("DistanceY", 0, 2, 0, 1, 21.952991),
    Sketcher.Constraint("DistanceY", 2, 1, 2, 2, 39.904344),
])
sketch14.setExpression("Constraints[11]", "Params.sketch14_width")
sketch14.setExpression("Constraints[12]", "Params.sketch14_width2")
sketch14.setExpression("Constraints[13]", "Params.sketch14_height")
pad4 = body.newObject("PartDesign::Pad", "Pad003")
pad4.Profile = sketch14
pad4.setExpression("Length", "Params.pad4_length")

# Sketch on YZ plane
sketch15 = body.newObject("Sketcher::SketchObject", "Sketch014")
sketch15.AttachmentSupport = (doc.getObject("YZ_Plane"), [""])
sketch15.MapMode = "FlatFace"
sketch15.AttachmentOffset = App.Placement(Vector(0, 0, 17), App.Rotation())
add_polygon(sketch15, [(-73, 63), (-28, 18), (-28, 63)])  # lines 0-2
sketch15.addConstraint([
    Sketcher.Constraint("Vertical", 1),
    Sketcher.Constraint("Horizontal", 2),
    Sketcher.Constraint("Equal", 2, 1),
    Sketcher.Constraint("DistanceX", 2, 2, 2, 1, 45.0),
    Sketcher.Constraint("DistanceX", 0, 2, -1, 1, 28.0),
    Sketcher.Constraint("DistanceY", -1, 1, 0, 2, 18.0),
])
sketch15.setExpression("Constraints[6]", "Params.sketch15_width")
pocket10 = body.newObject("PartDesign::Pocket", "Pocket009")
pocket10.Profile = sketch15
pocket10.setExpression("Length", "Params.pocket10_length")
pocket10.Reversed = True

# Sketch on an angled plane
sketch16 = body.newObject("Sketcher::SketchObject", "Sketch015")
sketch16.Placement = App.Placement(Vector(0, -5, -5), App.Rotation(Vector(-1, 0, 0), Vector(0, 0.707106781, -0.707106781), Vector(0, -0.707106781, -0.707106781), "ZXY"))
sketch16.addGeometry(Part.Circle(Vector(-26, -50.7, 0), Vector(0, 0, 1), 1.7), False)
sketch16.addConstraint([
    Sketcher.Constraint("Diameter", 0, 3.4),
    Sketcher.Constraint("DistanceX", 0, 3, -1, 1, 26.0),
    Sketcher.Constraint("DistanceY", 0, 3, -1, 1, 50.726912),
])
sketch16.setExpression("Constraints[0]", "Params.sketch16_diameter")
pocket11 = body.newObject("PartDesign::Pocket", "Pocket010")
pocket11.Profile = sketch16
pocket11.setExpression("Length", "Params.pocket11_length")
pocket11.Reversed = True

# Sketch on an angled plane
sketch17 = body.newObject("Sketcher::SketchObject", "Sketch016")
sketch17.Placement = App.Placement(Vector(0, -6.414214, -6.414214), App.Rotation(Vector(-1, 0, 0), Vector(0, 0.707106781, -0.707106781), Vector(0, -0.707106781, -0.707106781), "ZXY"))
add_polygon(sketch17, [(-24.3, -53.6), (-22.6, -50.7), (-24.3, -47.8), (-27.7, -47.8), (-29.4, -50.7), (-27.7, -53.6)])  # lines 0-5
sketch17.addConstraint([
    Sketcher.Constraint("Horizontal", 2),
    Sketcher.Constraint("Horizontal", 5),
    Sketcher.Constraint("Parallel", 0, 3),
    Sketcher.Constraint("Parallel", 1, 4),
    Sketcher.Constraint("Horizontal", 0, 2, 3, 2),
    Sketcher.Constraint("Vertical", 2, 2, 4, 2),
    Sketcher.Constraint("Vertical", 1, 2, 5, 2),
    Sketcher.Constraint("Angle", 0, Q("59.999999 deg")),
    Sketcher.Constraint("DistanceX", 2, 2, 2, 1, 3.35),
    Sketcher.Constraint("DistanceX", 3, 2, 0, 2, 6.7),
    Sketcher.Constraint("DistanceX", 0, 2, -1, 1, 22.65),
    Sketcher.Constraint("DistanceY", 0, 2, -1, 1, 50.726912),
])
sketch17.setExpression("Constraints[14]", "Params.sketch17_width")
pocket12 = body.newObject("PartDesign::Pocket", "Pocket011")
pocket12.Profile = sketch17
pocket12.setExpression("Length", "Params.pocket12_length")
pocket12.Reversed = True
doc.recompute()

mirrored2 = body.newObject("PartDesign::Mirrored", "Mirrored001")
mirrored2.Originals = [pad3, pocket7, pocket8, pocket9, pad4, pocket10, pocket11, pocket12]
mirrored2.MirrorPlane = (doc.getObject("XZ_Plane"), [""])
body.Tip = mirrored2

doc.recompute()
